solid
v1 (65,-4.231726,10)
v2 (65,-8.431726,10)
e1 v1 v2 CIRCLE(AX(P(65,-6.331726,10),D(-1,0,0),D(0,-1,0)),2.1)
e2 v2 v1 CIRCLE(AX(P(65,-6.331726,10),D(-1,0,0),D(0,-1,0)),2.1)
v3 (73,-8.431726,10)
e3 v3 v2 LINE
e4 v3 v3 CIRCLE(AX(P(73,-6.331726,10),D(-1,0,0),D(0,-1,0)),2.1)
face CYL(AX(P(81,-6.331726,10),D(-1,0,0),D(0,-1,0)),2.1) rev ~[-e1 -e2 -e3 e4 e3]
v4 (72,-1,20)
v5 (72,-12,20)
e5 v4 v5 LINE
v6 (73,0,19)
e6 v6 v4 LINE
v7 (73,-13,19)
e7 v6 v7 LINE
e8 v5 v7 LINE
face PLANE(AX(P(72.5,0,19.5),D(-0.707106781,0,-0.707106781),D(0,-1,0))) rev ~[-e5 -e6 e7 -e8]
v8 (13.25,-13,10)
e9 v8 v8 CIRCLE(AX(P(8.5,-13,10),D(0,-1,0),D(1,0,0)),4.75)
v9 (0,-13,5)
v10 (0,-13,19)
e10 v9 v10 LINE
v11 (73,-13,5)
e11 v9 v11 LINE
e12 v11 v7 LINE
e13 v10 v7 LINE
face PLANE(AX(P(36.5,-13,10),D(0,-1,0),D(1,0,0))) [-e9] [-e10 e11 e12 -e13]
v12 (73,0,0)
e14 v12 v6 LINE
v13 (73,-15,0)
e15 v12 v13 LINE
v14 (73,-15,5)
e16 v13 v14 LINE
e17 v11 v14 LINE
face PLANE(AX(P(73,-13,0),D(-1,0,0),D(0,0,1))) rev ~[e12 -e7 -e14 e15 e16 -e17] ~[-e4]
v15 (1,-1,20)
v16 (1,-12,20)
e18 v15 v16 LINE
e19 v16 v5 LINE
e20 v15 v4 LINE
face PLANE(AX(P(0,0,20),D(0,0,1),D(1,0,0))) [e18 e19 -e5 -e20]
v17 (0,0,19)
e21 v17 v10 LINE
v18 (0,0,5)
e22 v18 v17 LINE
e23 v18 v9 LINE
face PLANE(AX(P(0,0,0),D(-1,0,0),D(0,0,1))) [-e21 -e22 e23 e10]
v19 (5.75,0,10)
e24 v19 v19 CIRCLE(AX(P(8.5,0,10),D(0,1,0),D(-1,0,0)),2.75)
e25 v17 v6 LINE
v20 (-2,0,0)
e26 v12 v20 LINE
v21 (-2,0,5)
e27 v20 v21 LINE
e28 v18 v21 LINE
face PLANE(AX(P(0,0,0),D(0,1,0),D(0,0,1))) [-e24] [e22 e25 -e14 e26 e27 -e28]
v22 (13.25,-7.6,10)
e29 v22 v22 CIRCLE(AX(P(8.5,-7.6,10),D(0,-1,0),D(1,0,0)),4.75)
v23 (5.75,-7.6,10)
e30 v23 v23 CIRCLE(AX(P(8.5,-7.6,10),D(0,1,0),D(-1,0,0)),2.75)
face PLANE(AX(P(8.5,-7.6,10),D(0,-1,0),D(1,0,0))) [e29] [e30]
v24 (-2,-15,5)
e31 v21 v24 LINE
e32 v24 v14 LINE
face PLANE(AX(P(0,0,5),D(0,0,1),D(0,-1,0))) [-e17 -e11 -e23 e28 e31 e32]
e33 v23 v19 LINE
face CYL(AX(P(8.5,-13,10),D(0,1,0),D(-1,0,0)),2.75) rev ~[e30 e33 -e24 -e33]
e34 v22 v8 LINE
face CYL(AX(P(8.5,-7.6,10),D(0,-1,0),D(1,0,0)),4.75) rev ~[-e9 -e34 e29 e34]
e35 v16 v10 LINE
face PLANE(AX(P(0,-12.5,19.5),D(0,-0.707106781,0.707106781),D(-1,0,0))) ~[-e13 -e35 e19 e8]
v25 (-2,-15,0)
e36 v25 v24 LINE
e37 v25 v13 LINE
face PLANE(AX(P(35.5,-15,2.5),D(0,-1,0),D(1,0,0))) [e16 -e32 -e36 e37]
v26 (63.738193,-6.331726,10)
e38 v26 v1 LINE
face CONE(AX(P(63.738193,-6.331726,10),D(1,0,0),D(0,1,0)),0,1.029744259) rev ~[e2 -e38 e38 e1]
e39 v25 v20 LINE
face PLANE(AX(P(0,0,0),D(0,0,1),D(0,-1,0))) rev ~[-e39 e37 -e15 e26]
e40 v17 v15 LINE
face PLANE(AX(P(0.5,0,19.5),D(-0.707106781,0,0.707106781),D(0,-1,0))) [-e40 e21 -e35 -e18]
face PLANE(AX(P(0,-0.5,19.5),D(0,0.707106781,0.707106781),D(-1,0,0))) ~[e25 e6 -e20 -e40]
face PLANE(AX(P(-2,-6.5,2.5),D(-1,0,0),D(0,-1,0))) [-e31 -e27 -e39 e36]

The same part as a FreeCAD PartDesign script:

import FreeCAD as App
import Part
import Sketcher


def edges_at(feature, points):
    """Names of the edges that pass closest to the given points."""
    edges = feature.Shape.Edges
    near = lambda p: min(range(len(edges)), key=lambda i: edges[i].distToShape(Part.Vertex(*p))[0])
    return sorted({f"Edge{near(p) + 1}" for p in points})

doc = App.newDocument("Part")
params = doc.addObject("Spreadsheet::Sheet", "Params")
for row, (alias, value) in enumerate([
    ("sketch1_width", "73 mm"),
    ("sketch1_height", "20 mm"),
    ("pad1_length", "13 mm"),
    ("sketch2_width", "75 mm"),
    ("sketch2_height", "5 mm"),
    ("pad2_length", "2 mm"),
    ("sketch3_width", "13 mm"),
    ("sketch3_height", "5 mm"),
    ("pad3_length", "2 mm"),
    ("sketch4_diameter", "5.5 mm"),
    ("hole_diameter", "5.5 mm"),
    ("hole_cbore_diameter", "9.5 mm"),
    ("hole_cbore_depth", "5.4 mm"),
    ("sketch5_diameter", "4.2 mm"),
    ("hole2_diameter", "4.2 mm"),
    ("hole2_depth", "8 mm"),
    ("chamfer_size", "1 mm"),
], start=1):
    params.set(f"A{row}", alias)
    params.set(f"B{row}", "=" + value)
    params.setAlias(f"B{row}", alias)

body = doc.addObject("PartDesign::Body", "Body")

# Sketch on XZ plane
sketch1 = body.newObject("Sketcher::SketchObject", "Sketch")
sketch1.AttachmentSupport = (doc.getObject("XZ_Plane"), [""])
sketch1.MapMode = "FlatFace"
sketch1.addGeometry([
    Part.LineSegment(App.Vector(0, 20, 0), App.Vector(0, 0, 0)),
    Part.LineSegment(App.Vector(0, 0, 0), App.Vector(73, 0, 0)),
    Part.LineSegment(App.Vector(73, 0, 0), App.Vector(73, 20, 0)),
    Part.LineSegment(App.Vector(73, 20, 0), App.Vector(0, 20, 0)),
], False)
sketch1.addConstraint([
    Sketcher.Constraint("Coincident", 0, 2, 1, 1),
    Sketcher.Constraint("Coincident", 1, 2, 2, 1),
    Sketcher.Constraint("Coincident", 2, 2, 3, 1),
    Sketcher.Constraint("Coincident", 3, 2, 0, 1),
    Sketcher.Constraint("Vertical", 0),
    Sketcher.Constraint("Horizontal", 1),
    Sketcher.Constraint("Vertical", 2),
    Sketcher.Constraint("Horizontal", 3),
    Sketcher.Constraint("Coincident", 0, 2, -1, 1),
    Sketcher.Constraint("DistanceX", 1, 1, 1, 2, 73.0),
    Sketcher.Constraint("DistanceY", 0, 2, 0, 1, 20.0),
])
sketch1.setExpression("Constraints[9]", "Params.sketch1_width")
sketch1.setExpression("Constraints[10]", "Params.sketch1_height")
pad1 = body.newObject("PartDesign::Pad", "Pad")
pad1.Profile = sketch1
pad1.setExpression("Length", "Params.pad1_length")

# Sketch on XZ plane
sketch2 = body.newObject("Sketcher::SketchObject", "Sketch001")
sketch2.AttachmentSupport = (doc.getObject("XZ_Plane"), [""])
sketch2.MapMode = "FlatFace"
sketch2.AttachmentOffset = App.Placement(App.Vector(0, 0, 13), App.Rotation())
sketch2.addGeometry([
    Part.LineSegment(App.Vector(-2, 5, 0), App.Vector(-2, 0, 0)),
    Part.LineSegment(App.Vector(-2, 0, 0), App.Vector(73, 0, 0)),
    Part.LineSegment(App.Vector(73, 0, 0), App.Vector(73, 5, 0)),
    Part.LineSegment(App.Vector(73, 5, 0), App.Vector(-2, 5, 0)),
], False)
sketch2.addConstraint([
    Sketcher.Constraint("Coincident", 0, 2, 1, 1),
    Sketcher.Constraint("Coincident", 1, 2, 2, 1),
    Sketcher.Constraint("Coincident", 2, 2, 3, 1),
    Sketcher.Constraint("Coincident", 3, 2, 0, 1),
    Sketcher.Constraint("Vertical", 0),
    Sketcher.Constraint("Horizontal", 1),
    Sketcher.Constraint("Vertical", 2),
    Sketcher.Constraint("Horizontal", 3),
    Sketcher.Constraint("PointOnObject", 0, 2, -1),
    Sketcher.Constraint("DistanceX", 1, 1, 1, 2, 75.0),
    Sketcher.Constraint("DistanceY", 0, 2, 0, 1, 5.0),
    Sketcher.Constraint("DistanceX", 0, 2, -1, 1, 2.0),
])
sketch2.setExpression("Constraints[9]", "Params.sketch2_width")
sketch2.setExpression("Constraints[10]", "Params.sketch2_height")
pad2 = body.newObject("PartDesign::Pad", "Pad001")
pad2.Profile = sketch2
pad2.setExpression("Length", "Params.pad2_length")

# Sketch on YZ plane
sketch3 = body.newObject("Sketcher::SketchObject", "Sketch002")
sketch3.AttachmentSupport = (doc.getObject("YZ_Plane"), [""])
sketch3.MapMode = "FlatFace"
sketch3.addGeometry([
    Part.LineSegment(App.Vector(0, 5, 0), App.Vector(0, 0, 0)),
    Part.LineSegment(App.Vector(0, 0, 0), App.Vector(-13, 0, 0)),
    Part.LineSegment(App.Vector(-13, 0, 0), App.Vector(-13, 5, 0)),
    Part.LineSegment(App.Vector(-13, 5, 0), App.Vector(0, 5, 0)),
], False)
sketch3.addConstraint([
    Sketcher.Constraint("Coincident", 0, 2, 1, 1),
    Sketcher.Constraint("Coincident", 1, 2, 2, 1),
    Sketcher.Constraint("Coincident", 2, 2, 3, 1),
    Sketcher.Constraint("Coincident", 3, 2, 0, 1),
    Sketcher.Constraint("Vertical", 0),
    Sketcher.Constraint("Horizontal", 1),
    Sketcher.Constraint("Vertical", 2),
    Sketcher.Constraint("Horizontal", 3),
    Sketcher.Constraint("Coincident", 0, 2, -1, 1),
    Sketcher.Constraint("DistanceX", 1, 2, 1, 1, 13.0),
    Sketcher.Constraint("DistanceY", 0, 2, 0, 1, 5.0),
])
sketch3.setExpression("Constraints[9]", "Params.sketch3_width")
sketch3.setExpression("Constraints[10]", "Params.sketch3_height")
pad3 = body.newObject("PartDesign::Pad", "Pad002")
pad3.Profile = sketch3
pad3.setExpression("Length", "Params.pad3_length")
pad3.Reversed = True

# Sketch on XZ plane
sketch4 = body.newObject("Sketcher::SketchObject", "Sketch003")
sketch4.AttachmentSupport = (doc.getObject("XZ_Plane"), [""])
sketch4.MapMode = "FlatFace"
sketch4.AttachmentOffset = App.Placement(App.Vector(0, 0, 13), App.Rotation())
sketch4.addGeometry(Part.Circle(App.Vector(8.5, 10, 0), App.Vector(0, 0, 1), 2.8), False)
sketch4.addConstraint([
    Sketcher.Constraint("Diameter", 0, 5.5),
    Sketcher.Constraint("DistanceY", -1, 1, 0, 3, 10.0),
    Sketcher.Constraint("DistanceX", -1, 1, 0, 3, 8.5),
])
sketch4.setExpression("Constraints[0]", "Params.sketch4_diameter")
doc.recompute()
hole = body.newObject("PartDesign::Hole", "Hole")
hole.Profile = sketch4
hole.ThreadType = "None"
hole.setExpression("Diameter", "Params.hole_diameter")
hole.DepthType = "ThroughAll"
hole.HoleCutType = "Counterbore"
hole.setExpression("HoleCutDiameter", "Params.hole_cbore_diameter")
hole.setExpression("HoleCutDepth", "Params.hole_cbore_depth")

# Sketch on YZ plane
sketch5 = body.newObject("Sketcher::SketchObject", "Sketch004")
sketch5.AttachmentSupport = (doc.getObject("YZ_Plane"), [""])
sketch5.MapMode = "FlatFace"
sketch5.AttachmentOffset = App.Placement(App.Vector(0, 0, 73), App.Rotation())
sketch5.addGeometry(Part.Circle(App.Vector(-6.3, 10, 0), App.Vector(0, 0, 1), 2.1), False)
sketch5.addConstraint([
    Sketcher.Constraint("Diameter", 0, 4.2),
    Sketcher.Constraint("DistanceY", -1, 1, 0, 3, 10.0),
    Sketcher.Constraint("DistanceX", 0, 3, -1, 1, 6.331726),
])
sketch5.setExpression("Constraints[0]", "Params.sketch5_diameter")
doc.recompute()
hole2 = body.newObject("PartDesign::Hole", "Hole001")
hole2.Profile = sketch5
hole2.ThreadType = "None"
hole2.setExpression("Diameter", "Params.hole2_diameter")
hole2.DepthType = "Dimension"
hole2.setExpression("Depth", "Params.hole2_depth")
hole2.DrillPoint = "Angled"
hole2.DrillPointAngle = 118
doc.recompute()

chamfer = body.newObject("PartDesign::Chamfer", "Chamfer")
chamfer.Base = (hole2, edges_at(hole2, [
    (36.5, 0, 20),
    (36.5, -13, 20),
    (0, -6.5, 20),
    (73, -6.5, 20),
]))
chamfer.setExpression("Size", "Params.chamfer_size")

doc.recompute()
